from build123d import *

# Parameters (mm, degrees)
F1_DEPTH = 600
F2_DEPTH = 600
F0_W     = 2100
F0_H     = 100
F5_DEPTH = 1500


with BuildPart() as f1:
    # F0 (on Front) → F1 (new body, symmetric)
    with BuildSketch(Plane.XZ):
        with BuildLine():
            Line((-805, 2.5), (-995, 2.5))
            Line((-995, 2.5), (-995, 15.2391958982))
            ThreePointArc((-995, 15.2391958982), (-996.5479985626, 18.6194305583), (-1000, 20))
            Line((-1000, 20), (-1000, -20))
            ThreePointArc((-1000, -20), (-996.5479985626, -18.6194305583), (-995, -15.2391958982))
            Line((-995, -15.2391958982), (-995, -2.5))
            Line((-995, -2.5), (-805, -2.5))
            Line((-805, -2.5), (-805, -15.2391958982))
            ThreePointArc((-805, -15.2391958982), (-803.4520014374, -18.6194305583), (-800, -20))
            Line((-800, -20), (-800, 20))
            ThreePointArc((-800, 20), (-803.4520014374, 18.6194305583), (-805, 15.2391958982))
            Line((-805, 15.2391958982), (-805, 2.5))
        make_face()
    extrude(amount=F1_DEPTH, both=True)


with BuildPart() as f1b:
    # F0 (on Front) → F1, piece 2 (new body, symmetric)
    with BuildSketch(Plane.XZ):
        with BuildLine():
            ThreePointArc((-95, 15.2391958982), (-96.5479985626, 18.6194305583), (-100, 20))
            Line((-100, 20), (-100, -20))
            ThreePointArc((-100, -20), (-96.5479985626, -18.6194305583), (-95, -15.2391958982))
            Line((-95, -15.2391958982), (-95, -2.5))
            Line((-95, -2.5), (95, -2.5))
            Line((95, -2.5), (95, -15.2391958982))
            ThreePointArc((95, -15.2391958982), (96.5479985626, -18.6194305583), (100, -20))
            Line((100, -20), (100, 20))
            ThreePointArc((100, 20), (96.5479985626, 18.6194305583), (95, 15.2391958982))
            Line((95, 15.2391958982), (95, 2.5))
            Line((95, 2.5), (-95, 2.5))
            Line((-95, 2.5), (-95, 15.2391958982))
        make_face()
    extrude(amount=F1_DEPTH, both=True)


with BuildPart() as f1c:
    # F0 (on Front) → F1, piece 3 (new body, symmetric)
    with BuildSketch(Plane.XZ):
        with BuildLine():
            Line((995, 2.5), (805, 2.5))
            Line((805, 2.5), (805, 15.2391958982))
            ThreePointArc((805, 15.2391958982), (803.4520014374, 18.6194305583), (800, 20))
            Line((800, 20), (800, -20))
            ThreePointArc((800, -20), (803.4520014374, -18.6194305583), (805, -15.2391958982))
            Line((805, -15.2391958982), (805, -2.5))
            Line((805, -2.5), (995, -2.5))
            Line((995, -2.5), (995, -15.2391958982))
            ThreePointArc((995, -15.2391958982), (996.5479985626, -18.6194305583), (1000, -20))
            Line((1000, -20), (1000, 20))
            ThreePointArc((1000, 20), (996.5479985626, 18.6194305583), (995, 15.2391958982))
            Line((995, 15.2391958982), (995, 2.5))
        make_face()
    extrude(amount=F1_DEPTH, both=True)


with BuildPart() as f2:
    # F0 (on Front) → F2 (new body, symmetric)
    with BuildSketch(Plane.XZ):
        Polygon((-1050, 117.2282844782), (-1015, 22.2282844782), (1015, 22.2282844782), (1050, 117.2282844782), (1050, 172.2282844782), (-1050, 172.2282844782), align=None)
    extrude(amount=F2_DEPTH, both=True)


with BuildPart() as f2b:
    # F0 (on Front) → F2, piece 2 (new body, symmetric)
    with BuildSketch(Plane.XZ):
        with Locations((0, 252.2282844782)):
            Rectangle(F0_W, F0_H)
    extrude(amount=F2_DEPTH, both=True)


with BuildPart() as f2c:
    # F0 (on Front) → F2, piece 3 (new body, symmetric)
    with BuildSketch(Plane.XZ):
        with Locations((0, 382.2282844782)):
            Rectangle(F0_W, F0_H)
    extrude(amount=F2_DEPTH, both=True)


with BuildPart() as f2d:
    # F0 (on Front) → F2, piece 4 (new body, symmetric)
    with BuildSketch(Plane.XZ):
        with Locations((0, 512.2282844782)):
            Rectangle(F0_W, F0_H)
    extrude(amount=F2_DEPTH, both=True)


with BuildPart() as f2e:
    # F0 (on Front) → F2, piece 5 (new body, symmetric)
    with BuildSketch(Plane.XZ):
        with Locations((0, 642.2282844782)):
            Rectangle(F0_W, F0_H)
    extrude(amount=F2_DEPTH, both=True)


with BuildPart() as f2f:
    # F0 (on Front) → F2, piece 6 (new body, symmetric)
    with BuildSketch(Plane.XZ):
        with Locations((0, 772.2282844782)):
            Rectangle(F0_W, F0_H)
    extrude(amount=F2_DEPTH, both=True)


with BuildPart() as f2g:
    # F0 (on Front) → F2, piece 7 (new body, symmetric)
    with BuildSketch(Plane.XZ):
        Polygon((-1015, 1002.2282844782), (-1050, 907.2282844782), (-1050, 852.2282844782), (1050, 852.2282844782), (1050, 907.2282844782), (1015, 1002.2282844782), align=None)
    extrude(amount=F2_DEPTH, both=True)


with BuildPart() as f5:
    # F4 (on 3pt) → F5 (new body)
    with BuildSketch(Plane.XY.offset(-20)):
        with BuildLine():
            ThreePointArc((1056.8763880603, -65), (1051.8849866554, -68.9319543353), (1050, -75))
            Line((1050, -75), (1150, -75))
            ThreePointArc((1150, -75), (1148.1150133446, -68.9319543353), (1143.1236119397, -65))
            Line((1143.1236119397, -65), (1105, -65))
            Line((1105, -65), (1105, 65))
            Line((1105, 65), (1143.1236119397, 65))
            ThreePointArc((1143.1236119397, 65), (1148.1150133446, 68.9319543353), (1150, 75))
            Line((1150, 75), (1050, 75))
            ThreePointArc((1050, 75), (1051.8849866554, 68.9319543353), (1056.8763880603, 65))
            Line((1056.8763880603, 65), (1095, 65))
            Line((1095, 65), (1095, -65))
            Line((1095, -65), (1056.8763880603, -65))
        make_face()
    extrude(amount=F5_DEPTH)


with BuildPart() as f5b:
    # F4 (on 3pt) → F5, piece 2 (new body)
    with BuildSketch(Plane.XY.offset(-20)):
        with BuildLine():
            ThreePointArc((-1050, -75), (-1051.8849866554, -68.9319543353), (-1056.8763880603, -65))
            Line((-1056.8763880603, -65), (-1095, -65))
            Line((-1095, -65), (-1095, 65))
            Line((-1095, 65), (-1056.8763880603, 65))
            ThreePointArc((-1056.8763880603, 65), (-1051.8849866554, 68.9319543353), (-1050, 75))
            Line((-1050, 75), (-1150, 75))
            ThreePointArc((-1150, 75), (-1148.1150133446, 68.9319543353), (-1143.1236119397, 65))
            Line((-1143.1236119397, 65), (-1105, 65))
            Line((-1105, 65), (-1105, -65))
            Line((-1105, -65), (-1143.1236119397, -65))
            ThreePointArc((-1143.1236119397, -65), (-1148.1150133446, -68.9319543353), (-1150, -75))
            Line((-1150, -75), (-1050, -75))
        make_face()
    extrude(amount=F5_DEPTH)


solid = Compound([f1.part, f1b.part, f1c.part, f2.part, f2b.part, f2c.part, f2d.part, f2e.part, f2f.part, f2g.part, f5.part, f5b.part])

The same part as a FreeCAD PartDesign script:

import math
import FreeCAD as App
import Part
import Sketcher
Q = App.Units.Quantity

doc = App.newDocument("Part")
body = doc.addObject("PartDesign::Body", "Body")

# Sketch on XZ plane
sketch1 = body.newObject("Sketcher::SketchObject", "Sketch")
sketch1.AttachmentSupport = (doc.getObject("XZ_Plane"), [""])
sketch1.MapMode = "FlatFace"
sketch1.addGeometry(Part.LineSegment(App.Vector(-805, 2, 0), App.Vector(-995, 2, 0)), False)
sketch1.addGeometry(Part.LineSegment(App.Vector(-995, 2, 0), App.Vector(-995, 15, 0)), False)
sketch1.addGeometry(Part.ArcOfCircle(Part.Circle(App.Vector(-1000, 15, 0), App.Vector(0, 0, 1), 5), math.radians(3), math.radians(90)), False)
sketch1.addGeometry(Part.LineSegment(App.Vector(-1000, 20, 0), App.Vector(-1000, -20, 0)), False)
sketch1.addGeometry(Part.ArcOfCircle(Part.Circle(App.Vector(-1000, -15, 0), App.Vector(0, 0, 1), 5), math.radians(-90), math.radians(-3)), False)
sketch1.addGeometry(Part.LineSegment(App.Vector(-995, -15, 0), App.Vector(-995, -2, 0)), False)
sketch1.addGeometry(Part.LineSegment(App.Vector(-995, -2, 0), App.Vector(-805, -2, 0)), False)
sketch1.addGeometry(Part.LineSegment(App.Vector(-805, -2, 0), App.Vector(-805, -15, 0)), False)
sketch1.addGeometry(Part.ArcOfCircle(Part.Circle(App.Vector(-800, -15, 0), App.Vector(0, 0, 1), 5), math.radians(-177), math.radians(-90)), False)
sketch1.addGeometry(Part.LineSegment(App.Vector(-800, -20, 0), App.Vector(-800, 20, 0)), False)
sketch1.addGeometry(Part.ArcOfCircle(Part.Circle(App.Vector(-800, 15, 0), App.Vector(0, 0, 1), 5), math.radians(90), math.radians(177)), False)
sketch1.addGeometry(Part.LineSegment(App.Vector(-805, 15, 0), App.Vector(-805, 2, 0)), False)
sketch1.addConstraint(Sketcher.Constraint("Coincident", 0, 2, 1, 1))
sketch1.addConstraint(Sketcher.Constraint("Coincident", 1, 2, 2, 1))
sketch1.addConstraint(Sketcher.Constraint("Coincident", 2, 2, 3, 1))
sketch1.addConstraint(Sketcher.Constraint("Coincident", 3, 2, 4, 1))
sketch1.addConstraint(Sketcher.Constraint("Coincident", 4, 2, 5, 1))
sketch1.addConstraint(Sketcher.Constraint("Coincident", 5, 2, 6, 1))
sketch1.addConstraint(Sketcher.Constraint("Coincident", 6, 2, 7, 1))
sketch1.addConstraint(Sketcher.Constraint("Coincident", 7, 2, 8, 1))
sketch1.addConstraint(Sketcher.Constraint("Coincident", 8, 2, 9, 1))
sketch1.addConstraint(Sketcher.Constraint("Coincident", 9, 2, 10, 1))
sketch1.addConstraint(Sketcher.Constraint("Coincident", 10, 2, 11, 1))
sketch1.addConstraint(Sketcher.Constraint("Coincident", 11, 2, 0, 1))
sketch1.addConstraint(Sketcher.Constraint("Horizontal", 0))
sketch1.addConstraint(Sketcher.Constraint("Vertical", 1))
sketch1.addConstraint(Sketcher.Constraint("Vertical", 3))
sketch1.addConstraint(Sketcher.Constraint("Vertical", 5))
sketch1.addConstraint(Sketcher.Constraint("Horizontal", 6))
sketch1.addConstraint(Sketcher.Constraint("Vertical", 7))
sketch1.addConstraint(Sketcher.Constraint("Vertical", 9))
sketch1.addConstraint(Sketcher.Constraint("Vertical", 11))
sketch1.addConstraint(Sketcher.Constraint("Equal", 2, 4))
sketch1.addConstraint(Sketcher.Constraint("Equal", 4, 8))
sketch1.addConstraint(Sketcher.Constraint("Equal", 8, 10))
sketch1.addConstraint(Sketcher.Constraint("Symmetric", 2, 3, 4, 3, -1))
sketch1.addConstraint(Sketcher.Constraint("Symmetric", 8, 3, 10, 3, -1))
sketch1.addConstraint(Sketcher.Constraint("Symmetric", 0, 2, 5, 2, -1))
sketch1.addConstraint(Sketcher.Constraint("Horizontal", 4, 3, 8, 3))
sketch1.addConstraint(Sketcher.Constraint("Horizontal", 4, 2, 7, 2))
sketch1.addConstraint(Sketcher.Constraint("Horizontal", 1, 2, 10, 2))
sketch1.addConstraint(Sketcher.Constraint("Vertical", 4, 3, 2, 2))
sketch1.addConstraint(Sketcher.Constraint("Vertical", 10, 3, 8, 2))
sketch1.addConstraint(Sketcher.Constraint("DistanceX", 0, 2, 0, 1, Q("190 mm")))
sketch1.addConstraint(Sketcher.Constraint("DistanceY", 3, 2, 3, 1, Q("40 mm")))
sketch1.addConstraint(Sketcher.Constraint("DistanceX", 2, 3, -1, 1, Q("1000 mm")))
sketch1.addConstraint(Sketcher.Constraint("DistanceX", 8, 3, -1, 1, Q("800 mm")))
sketch1.addConstraint(Sketcher.Constraint("DistanceY", 5, 2, 0, 2, Q("5 mm")))
sketch1.addConstraint(Sketcher.Constraint("Radius", 2, Q("5.006009 mm")))
pad1 = body.newObject("PartDesign::Pad", "Pad")
pad1.Profile = sketch1
pad1.Length = 1200
pad1.Midplane = True
body2 = doc.addObject("PartDesign::Body", "Body001")

# Sketch on XZ plane
sketch2 = body2.newObject("Sketcher::SketchObject", "Sketch001")
sketch2.AttachmentSupport = (doc.getObject("XZ_Plane001"), [""])
sketch2.MapMode = "FlatFace"
sketch2.addGeometry(Part.ArcOfCircle(Part.Circle(App.Vector(-100, 15, 0), App.Vector(0, 0, 1), 5), math.radians(3), math.radians(90)), False)
sketch2.addGeometry(Part.LineSegment(App.Vector(-100, 20, 0), App.Vector(-100, -20, 0)), False)
sketch2.addGeometry(Part.ArcOfCircle(Part.Circle(App.Vector(-100, -15, 0), App.Vector(0, 0, 1), 5), math.radians(-90), math.radians(-3)), False)
sketch2.addGeometry(Part.LineSegment(App.Vector(-95, -15, 0), App.Vector(-95, -2, 0)), False)
sketch2.addGeometry(Part.LineSegment(App.Vector(-95, -2, 0), App.Vector(95, -2, 0)), False)
sketch2.addGeometry(Part.LineSegment(App.Vector(95, -2, 0), App.Vector(95, -15, 0)), False)
sketch2.addGeometry(Part.ArcOfCircle(Part.Circle(App.Vector(100, -15, 0), App.Vector(0, 0, 1), 5), math.radians(-177), math.radians(-90)), False)
sketch2.addGeometry(Part.LineSegment(App.Vector(100, -20, 0), App.Vector(100, 20, 0)), False)
sketch2.addGeometry(Part.ArcOfCircle(Part.Circle(App.Vector(100, 15, 0), App.Vector(0, 0, 1), 5), math.radians(90), math.radians(177)), False)
sketch2.addGeometry(Part.LineSegment(App.Vector(95, 15, 0), App.Vector(95, 2, 0)), False)
sketch2.addGeometry(Part.LineSegment(App.Vector(95, 2, 0), App.Vector(-95, 2, 0)), False)
sketch2.addGeometry(Part.LineSegment(App.Vector(-95, 2, 0), App.Vector(-95, 15, 0)), False)
sketch2.addConstraint(Sketcher.Constraint("Coincident", 0, 2, 1, 1))
sketch2.addConstraint(Sketcher.Constraint("Coincident", 1, 2, 2, 1))
sketch2.addConstraint(Sketcher.Constraint("Coincident", 2, 2, 3, 1))
sketch2.addConstraint(Sketcher.Constraint("Coincident", 3, 2, 4, 1))
sketch2.addConstraint(Sketcher.Constraint("Coincident", 4, 2, 5, 1))
sketch2.addConstraint(Sketcher.Constraint("Coincident", 5, 2, 6, 1))
sketch2.addConstraint(Sketcher.Constraint("Coincident", 6, 2, 7, 1))
sketch2.addConstraint(Sketcher.Constraint("Coincident", 7, 2, 8, 1))
sketch2.addConstraint(Sketcher.Constraint("Coincident", 8, 2, 9, 1))
sketch2.addConstraint(Sketcher.Constraint("Coincident", 9, 2, 10, 1))
sketch2.addConstraint(Sketcher.Constraint("Coincident", 10, 2, 11, 1))
sketch2.addConstraint(Sketcher.Constraint("Coincident", 11, 2, 0, 1))
sketch2.addConstraint(Sketcher.Constraint("Vertical", 1))
sketch2.addConstraint(Sketcher.Constraint("Vertical", 3))
sketch2.addConstraint(Sketcher.Constraint("Horizontal", 4))
sketch2.addConstraint(Sketcher.Constraint("Vertical", 5))
sketch2.addConstraint(Sketcher.Constraint("Vertical", 7))
sketch2.addConstraint(Sketcher.Constraint("Vertical", 9))
sketch2.addConstraint(Sketcher.Constraint("Horizontal", 10))
sketch2.addConstraint(Sketcher.Constraint("Vertical", 11))
sketch2.addConstraint(Sketcher.Constraint("Equal", 0, 2))
sketch2.addConstraint(Sketcher.Constraint("Equal", 2, 6))
sketch2.addConstraint(Sketcher.Constraint("Equal", 6, 8))
sketch2.addConstraint(Sketcher.Constraint("Symmetric", 0, 3, 6, 3, -1, 1))
sketch2.addConstraint(Sketcher.Constraint("Symmetric", 2, 3, 8, 3, -1, 1))
sketch2.addConstraint(Sketcher.Constraint("Symmetric", 3, 2, 9, 2, -1, 1))
sketch2.addConstraint(Sketcher.Constraint("Symmetric", 2, 3, 6, 3, -2))
sketch2.addConstraint(Sketcher.Constraint("Horizontal", 2, 2, 5, 2))
sketch2.addConstraint(Sketcher.Constraint("Horizontal", 8, 2, 11, 2))
sketch2.addConstraint(Sketcher.Constraint("Vertical", 2, 3, 0, 2))
sketch2.addConstraint(Sketcher.Constraint("Vertical", 8, 3, 6, 2))
sketch2.addConstraint(Sketcher.Constraint("DistanceX", 4, 1, 4, 2, Q("190 mm")))
sketch2.addConstraint(Sketcher.Constraint("DistanceY", 1, 2, 1, 1, Q("40 mm")))
sketch2.addConstraint(Sketcher.Constraint("DistanceX", 0, 3, -1, 1, Q("100 mm")))
sketch2.addConstraint(Sketcher.Constraint("DistanceY", 4, 2, 9, 2, Q("5 mm")))
sketch2.addConstraint(Sketcher.Constraint("Radius", 0, Q("5.006009 mm")))
pad2 = body2.newObject("PartDesign::Pad", "Pad001")
pad2.Profile = sketch2
pad2.Length = 1200
pad2.Midplane = True
body3 = doc.addObject("PartDesign::Body", "Body002")

# Sketch on XZ plane
sketch3 = body3.newObject("Sketcher::SketchObject", "Sketch002")
sketch3.AttachmentSupport = (doc.getObject("XZ_Plane002"), [""])
sketch3.MapMode = "FlatFace"
sketch3.addGeometry(Part.LineSegment(App.Vector(995, 2.5, 0), App.Vector(805, 2.5, 0)), False)
sketch3.addGeometry(Part.LineSegment(App.Vector(805, 2.5, 0), App.Vector(805, 15.239196, 0)), False)
sketch3.addGeometry(Part.ArcOfCircle(Part.Circle(App.Vector(800, 14.993991, 0), App.Vector(0, 0, 1), 5.006009), math.radians(2.807591), math.radians(90)), False)
sketch3.addGeometry(Part.LineSegment(App.Vector(800, 20, 0), App.Vector(800, -20, 0)), False)
sketch3.addGeometry(Part.ArcOfCircle(Part.Circle(App.Vector(800, -14.993991, 0), App.Vector(0, 0, 1), 5.006009), math.radians(-90), math.radians(-2.807591)), False)
sketch3.addGeometry(Part.LineSegment(App.Vector(805, -15.239196, 0), App.Vector(805, -2.5, 0)), False)
sketch3.addGeometry(Part.LineSegment(App.Vector(805, -2.5, 0), App.Vector(995, -2.5, 0)), False)
sketch3.addGeometry(Part.LineSegment(App.Vector(995, -2.5, 0), App.Vector(995, -15.239196, 0)), False)
sketch3.addGeometry(Part.ArcOfCircle(Part.Circle(App.Vector(1000, -14.993991, 0), App.Vector(0, 0, 1), 5.006009), math.radians(-177.192409), math.radians(-90)), False)
sketch3.addGeometry(Part.LineSegment(App.Vector(1000, -20, 0), App.Vector(1000, 20, 0)), False)
sketch3.addGeometry(Part.ArcOfCircle(Part.Circle(App.Vector(1000, 14.993991, 0), App.Vector(0, 0, 1), 5.006009), math.radians(90), math.radians(177.192409)), False)
sketch3.addGeometry(Part.LineSegment(App.Vector(995, 15.239196, 0), App.Vector(995, 2.5, 0)), False)
sketch3.addConstraint(Sketcher.Constraint("Coincident", 0, 2, 1, 1))
sketch3.addConstraint(Sketcher.Constraint("Coincident", 1, 2, 2, 1))
sketch3.addConstraint(Sketcher.Constraint("Coincident", 2, 2, 3, 1))
sketch3.addConstraint(Sketcher.Constraint("Coincident", 3, 2, 4, 1))
sketch3.addConstraint(Sketcher.Constraint("Coincident", 4, 2, 5, 1))
sketch3.addConstraint(Sketcher.Constraint("Coincident", 5, 2, 6, 1))
sketch3.addConstraint(Sketcher.Constraint("Coincident", 6, 2, 7, 1))
sketch3.addConstraint(Sketcher.Constraint("Coincident", 7, 2, 8, 1))
sketch3.addConstraint(Sketcher.Constraint("Coincident", 8, 2, 9, 1))
sketch3.addConstraint(Sketcher.Constraint("Coincident", 9, 2, 10, 1))
sketch3.addConstraint(Sketcher.Constraint("Coincident", 10, 2, 11, 1))
sketch3.addConstraint(Sketcher.Constraint("Coincident", 11, 2, 0, 1))
sketch3.addConstraint(Sketcher.Constraint("Horizontal", 0))
sketch3.addConstraint(Sketcher.Constraint("Vertical", 1))
sketch3.addConstraint(Sketcher.Constraint("Vertical", 3))
sketch3.addConstraint(Sketcher.Constraint("Vertical", 5))
sketch3.addConstraint(Sketcher.Constraint("Horizontal", 6))
sketch3.addConstraint(Sketcher.Constraint("Vertical", 7))
sketch3.addConstraint(Sketcher.Constraint("Vertical", 9))
sketch3.addConstraint(Sketcher.Constraint("Vertical", 11))
sketch3.addConstraint(Sketcher.Constraint("Equal", 2, 4))
sketch3.addConstraint(Sketcher.Constraint("Equal", 4, 8))
sketch3.addConstraint(Sketcher.Constraint("Equal", 8, 10))
sketch3.addConstraint(Sketcher.Constraint("Symmetric", 2, 3, 4, 3, -1))
sketch3.addConstraint(Sketcher.Constraint("Symmetric", 8, 3, 10, 3, -1))
sketch3.addConstraint(Sketcher.Constraint("Symmetric", 0, 2, 5, 2, -1))
sketch3.addConstraint(Sketcher.Constraint("Horizontal", 4, 3, 8, 3))
sketch3.addConstraint(Sketcher.Constraint("Horizontal", 4, 2, 7, 2))
sketch3.addConstraint(Sketcher.Constraint("Horizontal", 1, 2, 10, 2))
sketch3.addConstraint(Sketcher.Constraint("Vertical", 4, 3, 2, 2))
sketch3.addConstraint(Sketcher.Constraint("Vertical", 10, 3, 8, 2))
sketch3.addConstraint(Sketcher.Constraint("DistanceX", 0, 2, 0, 1, Q("190 mm")))
sketch3.addConstraint(Sketcher.Constraint("DistanceY", 3, 2, 3, 1, Q("40 mm")))
sketch3.addConstraint(Sketcher.Constraint("DistanceX", -1, 1, 2, 3, Q("800 mm")))
sketch3.addConstraint(Sketcher.Constraint("DistanceX", -1, 1, 8, 3, Q("1000 mm")))
sketch3.addConstraint(Sketcher.Constraint("DistanceY", 5, 2, 0, 2, Q("5 mm")))
sketch3.addConstraint(Sketcher.Constraint("Radius", 2, Q("5.006009 mm")))
pad3 = body3.newObject("PartDesign::Pad", "Pad002")
pad3.Profile = sketch3
pad3.Length = 1200
pad3.Midplane = True
body4 = doc.addObject("PartDesign::Body", "Body003")

# Sketch on XZ plane
sketch4 = body4.newObject("Sketcher::SketchObject", "Sketch003")
sketch4.AttachmentSupport = (doc.getObject("XZ_Plane003"), [""])
sketch4.MapMode = "FlatFace"
sketch4.addGeometry(Part.LineSegment(App.Vector(-1050, 117, 0), App.Vector(-1015, 22, 0)), False)
sketch4.addGeometry(Part.LineSegment(App.Vector(-1015, 22, 0), App.Vector(1015, 22, 0)), False)
sketch4.addGeometry(Part.LineSegment(App.Vector(1015, 22, 0), App.Vector(1050, 117, 0)), False)
sketch4.addGeometry(Part.LineSegment(App.Vector(1050, 117, 0), App.Vector(1050, 172, 0)), False)
sketch4.addGeometry(Part.LineSegment(App.Vector(1050, 172, 0), App.Vector(-1050, 172, 0)), False)
sketch4.addGeometry(Part.LineSegment(App.Vector(-1050, 172, 0), App.Vector(-1050, 117, 0)), False)
sketch4.addConstraint(Sketcher.Constraint("Coincident", 0, 2, 1, 1))
sketch4.addConstraint(Sketcher.Constraint("Coincident", 1, 2, 2, 1))
sketch4.addConstraint(Sketcher.Constraint("Coincident", 2, 2, 3, 1))
sketch4.addConstraint(Sketcher.Constraint("Coincident", 3, 2, 4, 1))
sketch4.addConstraint(Sketcher.Constraint("Coincident", 4, 2, 5, 1))
sketch4.addConstraint(Sketcher.Constraint("Coincident", 5, 2, 0, 1))
sketch4.addConstraint(Sketcher.Constraint("Horizontal", 1))
sketch4.addConstraint(Sketcher.Constraint("Vertical", 3))
sketch4.addConstraint(Sketcher.Constraint("Horizontal", 4))
sketch4.addConstraint(Sketcher.Constraint("Vertical", 5))
sketch4.addConstraint(Sketcher.Constraint("Symmetric", 2, 2, 5, 2, -2))
sketch4.addConstraint(Sketcher.Constraint("Equal", 0, 2))
sketch4.addConstraint(Sketcher.Constraint("DistanceX", 1, 1, 1, 2, Q("2030 mm")))
sketch4.addConstraint(Sketcher.Constraint("DistanceX", 4, 2, 4, 1, Q("2100 mm")))
sketch4.addConstraint(Sketcher.Constraint("DistanceY", 3, 1, 3, 2, Q("55 mm")))
sketch4.addConstraint(Sketcher.Constraint("DistanceY", 1, 2, 2, 2, Q("95 mm")))
sketch4.addConstraint(Sketcher.Constraint("DistanceY", -1, 1, 0, 2, Q("22.228284 mm")))
pad4 = body4.newObject("PartDesign::Pad", "Pad003")
pad4.Profile = sketch4
pad4.Length = 1200
pad4.Midplane = True
body5 = doc.addObject("PartDesign::Body", "Body004")

# Sketch on XZ plane
sketch5 = body5.newObject("Sketcher::SketchObject", "Sketch004")
sketch5.AttachmentSupport = (doc.getObject("XZ_Plane004"), [""])
sketch5.MapMode = "FlatFace"
sketch5.addGeometry(Part.LineSegment(App.Vector(-1050, 302, 0), App.Vector(-1050, 202, 0)), False)
sketch5.addGeometry(Part.LineSegment(App.Vector(-1050, 202, 0), App.Vector(1050, 202, 0)), False)
sketch5.addGeometry(Part.LineSegment(App.Vector(1050, 202, 0), App.Vector(1050, 302, 0)), False)
sketch5.addGeometry(Part.LineSegment(App.Vector(1050, 302, 0), App.Vector(-1050, 302, 0)), False)
sketch5.addConstraint(Sketcher.Constraint("Coincident", 0, 2, 1, 1))
sketch5.addConstraint(Sketcher.Constraint("Coincident", 1, 2, 2, 1))
sketch5.addConstraint(Sketcher.Constraint("Coincident", 2, 2, 3, 1))
sketch5.addConstraint(Sketcher.Constraint("Coincident", 3, 2, 0, 1))
sketch5.addConstraint(Sketcher.Constraint("Vertical", 0))
sketch5.addConstraint(Sketcher.Constraint("Horizontal", 1))
sketch5.addConstraint(Sketcher.Constraint("Vertical", 2))
sketch5.addConstraint(Sketcher.Constraint("Horizontal", 3))
sketch5.addConstraint(Sketcher.Constraint("DistanceX", 1, 1, 1, 2, Q("2100 mm")))
sketch5.addConstraint(Sketcher.Constraint("DistanceY", 0, 2, 0, 1, Q("100 mm")))
sketch5.addConstraint(Sketcher.Constraint("DistanceX", 0, 2, -1, 1, Q("1050 mm")))
sketch5.addConstraint(Sketcher.Constraint("DistanceY", -1, 1, 0, 2, Q("202.228284 mm")))
pad5 = body5.newObject("PartDesign::Pad", "Pad004")
pad5.Profile = sketch5
pad5.Length = 1200
pad5.Midplane = True
body6 = doc.addObject("PartDesign::Body", "Body005")

# Sketch on XZ plane
sketch6 = body6.newObject("Sketcher::SketchObject", "Sketch005")
sketch6.AttachmentSupport = (doc.getObject("XZ_Plane005"), [""])
sketch6.MapMode = "FlatFace"
sketch6.addGeometry(Part.LineSegment(App.Vector(-1050, 432, 0), App.Vector(-1050, 332, 0)), False)
sketch6.addGeometry(Part.LineSegment(App.Vector(-1050, 332, 0), App.Vector(1050, 332, 0)), False)
sketch6.addGeometry(Part.LineSegment(App.Vector(1050, 332, 0), App.Vector(1050, 432, 0)), False)
sketch6.addGeometry(Part.LineSegment(App.Vector(1050, 432, 0), App.Vector(-1050, 432, 0)), False)
sketch6.addConstraint(Sketcher.Constraint("Coincident", 0, 2, 1, 1))
sketch6.addConstraint(Sketcher.Constraint("Coincident", 1, 2, 2, 1))
sketch6.addConstraint(Sketcher.Constraint("Coincident", 2, 2, 3, 1))
sketch6.addConstraint(Sketcher.Constraint("Coincident", 3, 2, 0, 1))
sketch6.addConstraint(Sketcher.Constraint("Vertical", 0))
sketch6.addConstraint(Sketcher.Constraint("Horizontal", 1))
sketch6.addConstraint(Sketcher.Constraint("Vertical", 2))
sketch6.addConstraint(Sketcher.Constraint("Horizontal", 3))
sketch6.addConstraint(Sketcher.Constraint("DistanceX", 1, 1, 1, 2, Q("2100 mm")))
sketch6.addConstraint(Sketcher.Constraint("DistanceY", 0, 2, 0, 1, Q("100 mm")))
sketch6.addConstraint(Sketcher.Constraint("DistanceX", 0, 2, -1, 1, Q("1050 mm")))
sketch6.addConstraint(Sketcher.Constraint("DistanceY", -1, 1, 0, 2, Q("332.228284 mm")))
pad6 = body6.newObject("PartDesign::Pad", "Pad005")
pad6.Profile = sketch6
pad6.Length = 1200
pad6.Midplane = True
body7 = doc.addObject("PartDesign::Body", "Body006")

# Sketch on XZ plane
sketch7 = body7.newObject("Sketcher::SketchObject", "Sketch006")
sketch7.AttachmentSupport = (doc.getObject("XZ_Plane006"), [""])
sketch7.MapMode = "FlatFace"
sketch7.addGeometry(Part.LineSegment(App.Vector(-1050, 562, 0), App.Vector(-1050, 462, 0)), False)
sketch7.addGeometry(Part.LineSegment(App.Vector(-1050, 462, 0), App.Vector(1050, 462, 0)), False)
sketch7.addGeometry(Part.LineSegment(App.Vector(1050, 462, 0), App.Vector(1050, 562, 0)), False)
sketch7.addGeometry(Part.LineSegment(App.Vector(1050, 562, 0), App.Vector(-1050, 562, 0)), False)
sketch7.addConstraint(Sketcher.Constraint("Coincident", 0, 2, 1, 1))
sketch7.addConstraint(Sketcher.Constraint("Coincident", 1, 2, 2, 1))
sketch7.addConstraint(Sketcher.Constraint("Coincident", 2, 2, 3, 1))
sketch7.addConstraint(Sketcher.Constraint("Coincident", 3, 2, 0, 1))
sketch7.addConstraint(Sketcher.Constraint("Vertical", 0))
sketch7.addConstraint(Sketcher.Constraint("Horizontal", 1))
sketch7.addConstraint(Sketcher.Constraint("Vertical", 2))
sketch7.addConstraint(Sketcher.Constraint("Horizontal", 3))
sketch7.addConstraint(Sketcher.Constraint("DistanceX", 1, 1, 1, 2, Q("2100 mm")))
sketch7.addConstraint(Sketcher.Constraint("DistanceY", 0, 2, 0, 1, Q("100 mm")))
sketch7.addConstraint(Sketcher.Constraint("DistanceX", 0, 2, -1, 1, Q("1050 mm")))
sketch7.addConstraint(Sketcher.Constraint("DistanceY", -1, 1, 0, 2, Q("462.228284 mm")))
pad7 = body7.newObject("PartDesign::Pad", "Pad006")
pad7.Profile = sketch7
pad7.Length = 1200
pad7.Midplane = True
body8 = doc.addObject("PartDesign::Body", "Body007")

# Sketch on XZ plane
sketch8 = body8.newObject("Sketcher::SketchObject", "Sketch007")
sketch8.AttachmentSupport = (doc.getObject("XZ_Plane007"), [""])
sketch8.MapMode = "FlatFace"
sketch8.addGeometry(Part.LineSegment(App.Vector(-1050, 692, 0), App.Vector(-1050, 592, 0)), False)
sketch8.addGeometry(Part.LineSegment(App.Vector(-1050, 592, 0), App.Vector(1050, 592, 0)), False)
sketch8.addGeometry(Part.LineSegment(App.Vector(1050, 592, 0), App.Vector(1050, 692, 0)), False)
sketch8.addGeometry(Part.LineSegment(App.Vector(1050, 692, 0), App.Vector(-1050, 692, 0)), False)
sketch8.addConstraint(Sketcher.Constraint("Coincident", 0, 2, 1, 1))
sketch8.addConstraint(Sketcher.Constraint("Coincident", 1, 2, 2, 1))
sketch8.addConstraint(Sketcher.Constraint("Coincident", 2, 2, 3, 1))
sketch8.addConstraint(Sketcher.Constraint("Coincident", 3, 2, 0, 1))
sketch8.addConstraint(Sketcher.Constraint("Vertical", 0))
sketch8.addConstraint(Sketcher.Constraint("Horizontal", 1))
sketch8.addConstraint(Sketcher.Constraint("Vertical", 2))
sketch8.addConstraint(Sketcher.Constraint("Horizontal", 3))
sketch8.addConstraint(Sketcher.Constraint("DistanceX", 1, 1, 1, 2, Q("2100 mm")))
sketch8.addConstraint(Sketcher.Constraint("DistanceY", 0, 2, 0, 1, Q("100 mm")))
sketch8.addConstraint(Sketcher.Constraint("DistanceX", 0, 2, -1, 1, Q("1050 mm")))
sketch8.addConstraint(Sketcher.Constraint("DistanceY", -1, 1, 0, 2, Q("592.228284 mm")))
pad8 = body8.newObject("PartDesign::Pad", "Pad007")
pad8.Profile = sketch8
pad8.Length = 1200
pad8.Midplane = True
body9 = doc.addObject("PartDesign::Body", "Body008")

# Sketch on XZ plane
sketch9 = body9.newObject("Sketcher::SketchObject", "Sketch008")
sketch9.AttachmentSupport = (doc.getObject("XZ_Plane008"), [""])
sketch9.MapMode = "FlatFace"
sketch9.addGeometry(Part.LineSegment(App.Vector(-1050, 822, 0), App.Vector(-1050, 722, 0)), False)
sketch9.addGeometry(Part.LineSegment(App.Vector(-1050, 722, 0), App.Vector(1050, 722, 0)), False)
sketch9.addGeometry(Part.LineSegment(App.Vector(1050, 722, 0), App.Vector(1050, 822, 0)), False)
sketch9.addGeometry(Part.LineSegment(App.Vector(1050, 822, 0), App.Vector(-1050, 822, 0)), False)
sketch9.addConstraint(Sketcher.Constraint("Coincident", 0, 2, 1, 1))
sketch9.addConstraint(Sketcher.Constraint("Coincident", 1, 2, 2, 1))
sketch9.addConstraint(Sketcher.Constraint("Coincident", 2, 2, 3, 1))
sketch9.addConstraint(Sketcher.Constraint("Coincident", 3, 2, 0, 1))
sketch9.addConstraint(Sketcher.Constraint("Vertical", 0))
sketch9.addConstraint(Sketcher.Constraint("Horizontal", 1))
sketch9.addConstraint(Sketcher.Constraint("Vertical", 2))
sketch9.addConstraint(Sketcher.Constraint("Horizontal", 3))
sketch9.addConstraint(Sketcher.Constraint("DistanceX", 1, 1, 1, 2, Q("2100 mm")))
sketch9.addConstraint(Sketcher.Constraint("DistanceY", 0, 2, 0, 1, Q("100 mm")))
sketch9.addConstraint(Sketcher.Constraint("DistanceX", 0, 2, -1, 1, Q("1050 mm")))
sketch9.addConstraint(Sketcher.Constraint("DistanceY", -1, 1, 0, 2, Q("722.228284 mm")))
pad9 = body9.newObject("PartDesign::Pad", "Pad008")
pad9.Profile = sketch9
pad9.Length = 1200
pad9.Midplane = True
body10 = doc.addObject("PartDesign::Body", "Body009")

# Sketch on XZ plane
sketch10 = body10.newObject("Sketcher::SketchObject", "Sketch009")
sketch10.AttachmentSupport = (doc.getObject("XZ_Plane009"), [""])
sketch10.MapMode = "FlatFace"
sketch10.addGeometry(Part.LineSegment(App.Vector(-1015, 1002, 0), App.Vector(-1050, 907, 0)), False)
sketch10.addGeometry(Part.LineSegment(App.Vector(-1050, 907, 0), App.Vector(-1050, 852, 0)), False)
sketch10.addGeometry(Part.LineSegment(App.Vector(-1050, 852, 0), App.Vector(1050, 852, 0)), False)
sketch10.addGeometry(Part.LineSegment(App.Vector(1050, 852, 0), App.Vector(1050, 907, 0)), False)
sketch10.addGeometry(Part.LineSegment(App.Vector(1050, 907, 0), App.Vector(1015, 1002, 0)), False)
sketch10.addGeometry(Part.LineSegment(App.Vector(1015, 1002, 0), App.Vector(-1015, 1002, 0)), False)
sketch10.addConstraint(Sketcher.Constraint("Coincident", 0, 2, 1, 1))
sketch10.addConstraint(Sketcher.Constraint("Coincident", 1, 2, 2, 1))
sketch10.addConstraint(Sketcher.Constraint("Coincident", 2, 2, 3, 1))
sketch10.addConstraint(Sketcher.Constraint("Coincident", 3, 2, 4, 1))
sketch10.addConstraint(Sketcher.Constraint("Coincident", 4, 2, 5, 1))
sketch10.addConstraint(Sketcher.Constraint("Coincident", 5, 2, 0, 1))
sketch10.addConstraint(Sketcher.Constraint("Vertical", 1))
sketch10.addConstraint(Sketcher.Constraint("Horizontal", 2))
sketch10.addConstraint(Sketcher.Constraint("Vertical", 3))
sketch10.addConstraint(Sketcher.Constraint("Horizontal", 5))
sketch10.addConstraint(Sketcher.Constraint("Symmetric", 0, 2, 3, 2, -2))
sketch10.addConstraint(Sketcher.Constraint("Equal", 0, 4))
sketch10.addConstraint(Sketcher.Constraint("DistanceX", 2, 1, 2, 2, Q("2100 mm")))
sketch10.addConstraint(Sketcher.Constraint("DistanceX", 5, 2, 5, 1, Q("2030 mm")))
sketch10.addConstraint(Sketcher.Constraint("DistanceY", 1, 2, 1, 1, Q("55 mm")))
sketch10.addConstraint(Sketcher.Constraint("DistanceY", 3, 2, 4, 2, Q("95 mm")))
sketch10.addConstraint(Sketcher.Constraint("DistanceY", -1, 1, 0, 2, Q("907.228284 mm")))
pad10 = body10.newObject("PartDesign::Pad", "Pad009")
pad10.Profile = sketch10
pad10.Length = 1200
pad10.Midplane = True
body11 = doc.addObject("PartDesign::Body", "Body010")

# Sketch on XY plane
sketch11 = body11.newObject("Sketcher::SketchObject", "Sketch010")
sketch11.AttachmentSupport = (doc.getObject("XY_Plane010"), [""])
sketch11.MapMode = "FlatFace"
sketch11.AttachmentOffset = App.Placement(App.Vector(0, 0, -20), App.Rotation())
sketch11.addGeometry(Part.ArcOfCircle(Part.Circle(App.Vector(1061, -75, 0), App.Vector(0, 0, 1), 11), math.radians(111), math.radians(180)), False)
sketch11.addGeometry(Part.LineSegment(App.Vector(1050, -75, 0), App.Vector(1150, -75, 0)), False)
sketch11.addGeometry(Part.ArcOfCircle(Part.Circle(App.Vector(1139, -75, 0), App.Vector(0, 0, 1), 11), math.radians(0), math.radians(69)), False)
sketch11.addGeometry(Part.LineSegment(App.Vector(1143, -65, 0), App.Vector(1105, -65, 0)), False)
sketch11.addGeometry(Part.LineSegment(App.Vector(1105, -65, 0), App.Vector(1105, 65, 0)), False)
sketch11.addGeometry(Part.LineSegment(App.Vector(1105, 65, 0), App.Vector(1143, 65, 0)), False)
sketch11.addGeometry(Part.ArcOfCircle(Part.Circle(App.Vector(1139, 75, 0), App.Vector(0, 0, 1), 11), math.radians(-69), math.radians(0)), False)
sketch11.addGeometry(Part.LineSegment(App.Vector(1150, 75, 0), App.Vector(1050, 75, 0)), False)
sketch11.addGeometry(Part.ArcOfCircle(Part.Circle(App.Vector(1061, 75, 0), App.Vector(0, 0, 1), 11), math.radians(180), math.radians(249)), False)
sketch11.addGeometry(Part.LineSegment(App.Vector(1057, 65, 0), App.Vector(1095, 65, 0)), False)
sketch11.addGeometry(Part.LineSegment(App.Vector(1095, 65, 0), App.Vector(1095, -65, 0)), False)
sketch11.addGeometry(Part.LineSegment(App.Vector(1095, -65, 0), App.Vector(1057, -65, 0)), False)
sketch11.addConstraint(Sketcher.Constraint("Coincident", 0, 2, 1, 1))
sketch11.addConstraint(Sketcher.Constraint("Coincident", 1, 2, 2, 1))
sketch11.addConstraint(Sketcher.Constraint("Coincident", 2, 2, 3, 1))
sketch11.addConstraint(Sketcher.Constraint("Coincident", 3, 2, 4, 1))
sketch11.addConstraint(Sketcher.Constraint("Coincident", 4, 2, 5, 1))
sketch11.addConstraint(Sketcher.Constraint("Coincident", 5, 2, 6, 1))
sketch11.addConstraint(Sketcher.Constraint("Coincident", 6, 2, 7, 1))
sketch11.addConstraint(Sketcher.Constraint("Coincident", 7, 2, 8, 1))
sketch11.addConstraint(Sketcher.Constraint("Coincident", 8, 2, 9, 1))
sketch11.addConstraint(Sketcher.Constraint("Coincident", 9, 2, 10, 1))
sketch11.addConstraint(Sketcher.Constraint("Coincident", 10, 2, 11, 1))
sketch11.addConstraint(Sketcher.Constraint("Coincident", 11, 2, 0, 1))
sketch11.addConstraint(Sketcher.Constraint("Horizontal", 1))
sketch11.addConstraint(Sketcher.Constraint("Horizontal", 3))
sketch11.addConstraint(Sketcher.Constraint("Vertical", 4))
sketch11.addConstraint(Sketcher.Constraint("Horizontal", 5))
sketch11.addConstraint(Sketcher.Constraint("Horizontal", 7))
sketch11.addConstraint(Sketcher.Constraint("Horizontal", 9))
sketch11.addConstraint(Sketcher.Constraint("Vertical", 10))
sketch11.addConstraint(Sketcher.Constraint("Horizontal", 11))
sketch11.addConstraint(Sketcher.Constraint("Equal", 0, 2))
sketch11.addConstraint(Sketcher.Constraint("Equal", 2, 6))
sketch11.addConstraint(Sketcher.Constraint("Equal", 6, 8))
sketch11.addConstraint(Sketcher.Constraint("Symmetric", 2, 3, 6, 3, -1))
sketch11.addConstraint(Sketcher.Constraint("Symmetric", 0, 3, 8, 3, -1))
sketch11.addConstraint(Sketcher.Constraint("Horizontal", 0, 3, 2, 3))
sketch11.addConstraint(Sketcher.Constraint("Horizontal", 2, 3, 0, 2))
sketch11.addConstraint(Sketcher.Constraint("Horizontal", 8, 3, 6, 2))
sketch11.addConstraint(Sketcher.Constraint("Horizontal", 5, 2, 8, 2))
sketch11.addConstraint(Sketcher.Constraint("Horizontal", 3, 2, 10, 2))
sketch11.addConstraint(Sketcher.Constraint("Vertical", 2, 2, 5, 2))
sketch11.addConstraint(Sketcher.Constraint("Equal", 5, 9))
sketch11.addConstraint(Sketcher.Constraint("DistanceX", 1, 1, 1, 2, Q("100 mm")))
sketch11.addConstraint(Sketcher.Constraint("DistanceY", 4, 1, 4, 2, Q("130 mm")))
sketch11.addConstraint(Sketcher.Constraint("DistanceY", 0, 3, -1, 1, Q("75 mm")))
sketch11.addConstraint(Sketcher.Constraint("DistanceX", -1, 1, 0, 2, Q("1050 mm")))
sketch11.addConstraint(Sketcher.Constraint("DistanceX", -1, 1, 3, 2, Q("1105 mm")))
sketch11.addConstraint(Sketcher.Constraint("Radius", 0, Q("10.709453 mm")))
pad11 = body11.newObject("PartDesign::Pad", "Pad010")
pad11.Profile = sketch11
pad11.Length = 1500
body12 = doc.addObject("PartDesign::Body", "Body011")

# Sketch on XY plane
sketch12 = body12.newObject("Sketcher::SketchObject", "Sketch011")
sketch12.AttachmentSupport = (doc.getObject("XY_Plane011"), [""])
sketch12.MapMode = "FlatFace"
sketch12.AttachmentOffset = App.Placement(App.Vector(0, 0, -20), App.Rotation())
sketch12.addGeometry(Part.ArcOfCircle(Part.Circle(App.Vector(-1061, -75, 0), App.Vector(0, 0, 1), 11), math.radians(0), math.radians(69)), False)
sketch12.addGeometry(Part.LineSegment(App.Vector(-1057, -65, 0), App.Vector(-1095, -65, 0)), False)
sketch12.addGeometry(Part.LineSegment(App.Vector(-1095, -65, 0), App.Vector(-1095, 65, 0)), False)
sketch12.addGeometry(Part.LineSegment(App.Vector(-1095, 65, 0), App.Vector(-1057, 65, 0)), False)
sketch12.addGeometry(Part.ArcOfCircle(Part.Circle(App.Vector(-1061, 75, 0), App.Vector(0, 0, 1), 11), math.radians(-69), math.radians(0)), False)
sketch12.addGeometry(Part.LineSegment(App.Vector(-1050, 75, 0), App.Vector(-1150, 75, 0)), False)
sketch12.addGeometry(Part.ArcOfCircle(Part.Circle(App.Vector(-1139, 75, 0), App.Vector(0, 0, 1), 11), math.radians(180), math.radians(249)), False)
sketch12.addGeometry(Part.LineSegment(App.Vector(-1143, 65, 0), App.Vector(-1105, 65, 0)), False)
sketch12.addGeometry(Part.LineSegment(App.Vector(-1105, 65, 0), App.Vector(-1105, -65, 0)), False)
sketch12.addGeometry(Part.LineSegment(App.Vector(-1105, -65, 0), App.Vector(-1143, -65, 0)), False)
sketch12.addGeometry(Part.ArcOfCircle(Part.Circle(App.Vector(-1139, -75, 0), App.Vector(0, 0, 1), 11), math.radians(111), math.radians(180)), False)
sketch12.addGeometry(Part.LineSegment(App.Vector(-1150, -75, 0), App.Vector(-1050, -75, 0)), False)
sketch12.addConstraint(Sketcher.Constraint("Coincident", 0, 2, 1, 1))
sketch12.addConstraint(Sketcher.Constraint("Coincident", 1, 2, 2, 1))
sketch12.addConstraint(Sketcher.Constraint("Coincident", 2, 2, 3, 1))
sketch12.addConstraint(Sketcher.Constraint("Coincident", 3, 2, 4, 1))
sketch12.addConstraint(Sketcher.Constraint("Coincident", 4, 2, 5, 1))
sketch12.addConstraint(Sketcher.Constraint("Coincident", 5, 2, 6, 1))
sketch12.addConstraint(Sketcher.Constraint("Coincident", 6, 2, 7, 1))
sketch12.addConstraint(Sketcher.Constraint("Coincident", 7, 2, 8, 1))
sketch12.addConstraint(Sketcher.Constraint("Coincident", 8, 2, 9, 1))
sketch12.addConstraint(Sketcher.Constraint("Coincident", 9, 2, 10, 1))
sketch12.addConstraint(Sketcher.Constraint("Coincident", 10, 2, 11, 1))
sketch12.addConstraint(Sketcher.Constraint("Coincident", 11, 2, 0, 1))
sketch12.addConstraint(Sketcher.Constraint("Horizontal", 1))
sketch12.addConstraint(Sketcher.Constraint("Vertical", 2))
sketch12.addConstraint(Sketcher.Constraint("Horizontal", 3))
sketch12.addConstraint(Sketcher.Constraint("Horizontal", 5))
sketch12.addConstraint(Sketcher.Constraint("Horizontal", 7))
sketch12.addConstraint(Sketcher.Constraint("Vertical", 8))
sketch12.addConstraint(Sketcher.Constraint("Horizontal", 9))
sketch12.addConstraint(Sketcher.Constraint("Horizontal", 11))
sketch12.addConstraint(Sketcher.Constraint("Equal", 0, 4))
sketch12.addConstraint(Sketcher.Constraint("Equal", 4, 6))
sketch12.addConstraint(Sketcher.Constraint("Equal", 6, 10))
sketch12.addConstraint(Sketcher.Constraint("Symmetric", 0, 3, 4, 3, -1))
sketch12.addConstraint(Sketcher.Constraint("Symmetric", 6, 3, 10, 3, -1))
sketch12.addConstraint(Sketcher.Constraint("Horizontal", 4, 3, 6, 3))
sketch12.addConstraint(Sketcher.Constraint("Horizontal", 6, 3, 4, 2))
sketch12.addConstraint(Sketcher.Constraint("Horizontal", 3, 2, 6, 2))
sketch12.addConstraint(Sketcher.Constraint("Horizontal", 1, 2, 8, 2))
sketch12.addConstraint(Sketcher.Constraint("Horizontal", 0, 3, 10, 2))
sketch12.addConstraint(Sketcher.Constraint("Vertical", 0, 2, 3, 2))
sketch12.addConstraint(Sketcher.Constraint("Equal", 3, 7))
sketch12.addConstraint(Sketcher.Constraint("DistanceX", 5, 2, 5, 1, Q("100 mm")))
sketch12.addConstraint(Sketcher.Constraint("DistanceY", 2, 1, 2, 2, Q("130 mm")))
sketch12.addConstraint(Sketcher.Constraint("DistanceY", 0, 3, -1, 1, Q("75 mm")))
sketch12.addConstraint(Sketcher.Constraint("DistanceX", 1, 2, -1, 1, Q("1095 mm")))
sketch12.addConstraint(Sketcher.Constraint("DistanceX", 4, 2, -1, 1, Q("1050 mm")))
sketch12.addConstraint(Sketcher.Constraint("Radius", 0, Q("10.709453 mm")))
pad12 = body12.newObject("PartDesign::Pad", "Pad011")
pad12.Profile = sketch12
pad12.Length = 1500

doc.recompute()
